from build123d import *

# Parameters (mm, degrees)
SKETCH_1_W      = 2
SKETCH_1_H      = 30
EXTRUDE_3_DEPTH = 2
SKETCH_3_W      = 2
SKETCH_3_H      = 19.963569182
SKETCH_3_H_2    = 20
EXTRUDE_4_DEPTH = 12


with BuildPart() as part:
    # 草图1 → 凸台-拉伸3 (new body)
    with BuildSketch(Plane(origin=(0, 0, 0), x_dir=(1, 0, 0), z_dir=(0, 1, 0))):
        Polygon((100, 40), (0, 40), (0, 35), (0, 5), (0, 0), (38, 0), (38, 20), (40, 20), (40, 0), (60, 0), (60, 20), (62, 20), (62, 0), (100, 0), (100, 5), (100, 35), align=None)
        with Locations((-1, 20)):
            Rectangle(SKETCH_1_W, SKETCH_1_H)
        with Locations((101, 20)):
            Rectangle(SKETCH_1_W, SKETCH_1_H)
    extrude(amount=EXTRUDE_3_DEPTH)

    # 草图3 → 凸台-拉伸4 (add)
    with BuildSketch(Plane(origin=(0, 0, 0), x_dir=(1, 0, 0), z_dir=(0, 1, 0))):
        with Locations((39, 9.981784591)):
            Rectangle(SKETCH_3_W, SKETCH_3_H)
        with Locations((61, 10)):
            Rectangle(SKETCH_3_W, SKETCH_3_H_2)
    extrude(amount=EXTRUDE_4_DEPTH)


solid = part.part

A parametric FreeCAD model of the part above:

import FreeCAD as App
import Part
import Sketcher

V = App.Vector


def add_polygon(sketch, points):
    """Adds a closed chain of lines whose ends are joined by coincident constraints."""
    first, n = sketch.GeometryCount, len(points)
    for a, b in zip(points, points[1:] + points[:1]):
        sketch.addGeometry(Part.LineSegment(App.Vector(*a, 0), App.Vector(*b, 0)), False)
    for i in range(n):
        sketch.addConstraint(Sketcher.Constraint("Coincident", first + i, 2, first + (i + 1) % n, 1))

doc = App.newDocument("Part")
params = doc.addObject("Spreadsheet::Sheet", "Params")
for row, (alias, value) in enumerate([
    ("sketch1_width", "100 mm"),
    ("sketch1_width2", "2 mm"),
    ("sketch1_width3", "38 mm"),
    ("sketch1_height", "5 mm"),
    ("sketch1_height2", "30 mm"),
    ("pad1_length", "2 mm"),
    ("sketch2_width", "2 mm"),
    ("sketch2_height", "20 mm"),
    ("pad2_length", "12 mm"),
], start=1):
    params.set(f"A{row}", alias)
    params.set(f"B{row}", "=" + value)
    params.setAlias(f"B{row}", alias)

body = doc.addObject("PartDesign::Body", "Body")

# Sketch on XZ plane
sketch1 = body.newObject("Sketcher::SketchObject", "Sketch")
sketch1.AttachmentSupport = (doc.getObject("XZ_Plane"), [""])
sketch1.MapMode = "FlatFace"
add_polygon(sketch1, [(100, -40), (0, -40), (0, -35), (-2, -35), (-2, -5), (0, -5), (0, 0), (38, 0), (38, -20), (40, -20), (40, 0), (60, 0), (60, -20), (62, -20), (62, 0), (100, 0), (100, -5), (102, -5), (102, -35), (100, -35)])  # lines 0-19
sketch1.addConstraint(Sketcher.Constraint("Horizontal", 0))
sketch1.addConstraint(Sketcher.Constraint("Vertical", 1))
sketch1.addConstraint(Sketcher.Constraint("Horizontal", 2))
sketch1.addConstraint(Sketcher.Constraint("Vertical", 3))
sketch1.addConstraint(Sketcher.Constraint("Horizontal", 4))
sketch1.addConstraint(Sketcher.Constraint("Vertical", 5))
sketch1.addConstraint(Sketcher.Constraint("Horizontal", 6))
sketch1.addConstraint(Sketcher.Constraint("Vertical", 7))
sketch1.addConstraint(Sketcher.Constraint("Horizontal", 8))
sketch1.addConstraint(Sketcher.Constraint("Vertical", 9))
sketch1.addConstraint(Sketcher.Constraint("Horizontal", 10))
sketch1.addConstraint(Sketcher.Constraint("Vertical", 11))
sketch1.addConstraint(Sketcher.Constraint("Horizontal", 12))
sketch1.addConstraint(Sketcher.Constraint("Vertical", 13))
sketch1.addConstraint(Sketcher.Constraint("Horizontal", 14))
sketch1.addConstraint(Sketcher.Constraint("Vertical", 15))
sketch1.addConstraint(Sketcher.Constraint("Horizontal", 16))
sketch1.addConstraint(Sketcher.Constraint("Vertical", 17))
sketch1.addConstraint(Sketcher.Constraint("Horizontal", 18))
sketch1.addConstraint(Sketcher.Constraint("Vertical", 19))
sketch1.addConstraint(Sketcher.Constraint("Coincident", 5, 2, -1, 1))
sketch1.addConstraint(Sketcher.Constraint("PointOnObject", 0, 2, -2))
sketch1.addConstraint(Sketcher.Constraint("PointOnObject", 9, 2, -1))
sketch1.addConstraint(Sketcher.Constraint("PointOnObject", 13, 2, -1))
sketch1.addConstraint(Sketcher.Constraint("Horizontal", 8, 2, 11, 2))
sketch1.addConstraint(Sketcher.Constraint("Horizontal", 4, 2, 15, 2))
sketch1.addConstraint(Sketcher.Constraint("Horizontal", 2, 2, 17, 2))
sketch1.addConstraint(Sketcher.Constraint("Vertical", 15, 2, 18, 2))
sketch1.addConstraint(Sketcher.Constraint("Equal", 4, 8))
sketch1.addConstraint(Sketcher.Constraint("Equal", 8, 12))
sketch1.addConstraint(Sketcher.Constraint("Equal", 6, 14))
sketch1.addConstraint(Sketcher.Constraint("Equal", 12, 16))
sketch1.addConstraint(Sketcher.Constraint("Equal", 1, 5))
sketch1.addConstraint(Sketcher.Constraint("Equal", 10, 7))
sketch1.addConstraint(Sketcher.Constraint("DistanceX", 0, 2, 0, 1, 100.0))
sketch1.addConstraint(Sketcher.Constraint("DistanceX", 2, 2, 2, 1, 2.0))
sketch1.addConstraint(Sketcher.Constraint("DistanceX", 6, 1, 6, 2, 38.0))
sketch1.addConstraint(Sketcher.Constraint("DistanceY", 1, 1, 1, 2, 5.0))
sketch1.addConstraint(Sketcher.Constraint("DistanceY", 3, 1, 3, 2, 30.0))
sketch1.setExpression("Constraints[54]", "Params.sketch1_width")
sketch1.setExpression("Constraints[55]", "Params.sketch1_width2")
sketch1.setExpression("Constraints[56]", "Params.sketch1_width3")
sketch1.setExpression("Constraints[57]", "Params.sketch1_height")
sketch1.setExpression("Constraints[58]", "Params.sketch1_height2")
pad1 = body.newObject("PartDesign::Pad", "Pad")
pad1.Profile = sketch1
pad1.setExpression("Length", "Params.pad1_length")
pad1.Reversed = True

# Sketch on XZ plane
sketch2 = body.newObject("Sketcher::SketchObject", "Sketch001")
sketch2.AttachmentSupport = (doc.getObject("XZ_Plane"), [""])
sketch2.MapMode = "FlatFace"
add_polygon(sketch2, [(38, -19.963569), (38, 0), (40, 0), (40, -19.963569)])  # lines 0-3
add_polygon(sketch2, [(60, -20), (60, 0), (62, 0), (62, -20)])  # lines 4-7
sketch2.addConstraint(Sketcher.Constraint("Vertical", 0))
sketch2.addConstraint(Sketcher.Constraint("Horizontal", 1))
sketch2.addConstraint(Sketcher.Constraint("Vertical", 2))
sketch2.addConstraint(Sketcher.Constraint("Horizontal", 3))
sketch2.addConstraint(Sketcher.Constraint("Vertical", 4))
sketch2.addConstraint(Sketcher.Constraint("Horizontal", 5))
sketch2.addConstraint(Sketcher.Constraint("Vertical", 6))
sketch2.addConstraint(Sketcher.Constraint("Horizontal", 7))
sketch2.addConstraint(Sketcher.Constraint("PointOnObject", 0, 2, -1))
sketch2.addConstraint(Sketcher.Constraint("PointOnObject", 4, 2, -1))
sketch2.addConstraint(Sketcher.Constraint("Equal", 3, 5))
sketch2.addConstraint(Sketcher.Constraint("DistanceX", 1, 1, 1, 2, 2.0))
sketch2.addConstraint(Sketcher.Constraint("DistanceY", 4, 1, 4, 2, 20.0))
sketch2.addConstraint(Sketcher.Constraint("DistanceX", -1, 1, 0, 2, 38.0))
sketch2.addConstraint(Sketcher.Constraint("DistanceX", -1, 1, 4, 2, 60.0))
sketch2.addConstraint(Sketcher.Constraint("DistanceY", 0, 1, 0, 2, 19.963569))
sketch2.setExpression("Constraints[19]", "Params.sketch2_width")
sketch2.setExpression("Constraints[20]", "Params.sketch2_height")
pad2 = body.newObject("PartDesign::Pad", "Pad001")
pad2.Profile = sketch2
pad2.setExpression("Length", "Params.pad2_length")
pad2.Reversed = True

doc.recompute()
